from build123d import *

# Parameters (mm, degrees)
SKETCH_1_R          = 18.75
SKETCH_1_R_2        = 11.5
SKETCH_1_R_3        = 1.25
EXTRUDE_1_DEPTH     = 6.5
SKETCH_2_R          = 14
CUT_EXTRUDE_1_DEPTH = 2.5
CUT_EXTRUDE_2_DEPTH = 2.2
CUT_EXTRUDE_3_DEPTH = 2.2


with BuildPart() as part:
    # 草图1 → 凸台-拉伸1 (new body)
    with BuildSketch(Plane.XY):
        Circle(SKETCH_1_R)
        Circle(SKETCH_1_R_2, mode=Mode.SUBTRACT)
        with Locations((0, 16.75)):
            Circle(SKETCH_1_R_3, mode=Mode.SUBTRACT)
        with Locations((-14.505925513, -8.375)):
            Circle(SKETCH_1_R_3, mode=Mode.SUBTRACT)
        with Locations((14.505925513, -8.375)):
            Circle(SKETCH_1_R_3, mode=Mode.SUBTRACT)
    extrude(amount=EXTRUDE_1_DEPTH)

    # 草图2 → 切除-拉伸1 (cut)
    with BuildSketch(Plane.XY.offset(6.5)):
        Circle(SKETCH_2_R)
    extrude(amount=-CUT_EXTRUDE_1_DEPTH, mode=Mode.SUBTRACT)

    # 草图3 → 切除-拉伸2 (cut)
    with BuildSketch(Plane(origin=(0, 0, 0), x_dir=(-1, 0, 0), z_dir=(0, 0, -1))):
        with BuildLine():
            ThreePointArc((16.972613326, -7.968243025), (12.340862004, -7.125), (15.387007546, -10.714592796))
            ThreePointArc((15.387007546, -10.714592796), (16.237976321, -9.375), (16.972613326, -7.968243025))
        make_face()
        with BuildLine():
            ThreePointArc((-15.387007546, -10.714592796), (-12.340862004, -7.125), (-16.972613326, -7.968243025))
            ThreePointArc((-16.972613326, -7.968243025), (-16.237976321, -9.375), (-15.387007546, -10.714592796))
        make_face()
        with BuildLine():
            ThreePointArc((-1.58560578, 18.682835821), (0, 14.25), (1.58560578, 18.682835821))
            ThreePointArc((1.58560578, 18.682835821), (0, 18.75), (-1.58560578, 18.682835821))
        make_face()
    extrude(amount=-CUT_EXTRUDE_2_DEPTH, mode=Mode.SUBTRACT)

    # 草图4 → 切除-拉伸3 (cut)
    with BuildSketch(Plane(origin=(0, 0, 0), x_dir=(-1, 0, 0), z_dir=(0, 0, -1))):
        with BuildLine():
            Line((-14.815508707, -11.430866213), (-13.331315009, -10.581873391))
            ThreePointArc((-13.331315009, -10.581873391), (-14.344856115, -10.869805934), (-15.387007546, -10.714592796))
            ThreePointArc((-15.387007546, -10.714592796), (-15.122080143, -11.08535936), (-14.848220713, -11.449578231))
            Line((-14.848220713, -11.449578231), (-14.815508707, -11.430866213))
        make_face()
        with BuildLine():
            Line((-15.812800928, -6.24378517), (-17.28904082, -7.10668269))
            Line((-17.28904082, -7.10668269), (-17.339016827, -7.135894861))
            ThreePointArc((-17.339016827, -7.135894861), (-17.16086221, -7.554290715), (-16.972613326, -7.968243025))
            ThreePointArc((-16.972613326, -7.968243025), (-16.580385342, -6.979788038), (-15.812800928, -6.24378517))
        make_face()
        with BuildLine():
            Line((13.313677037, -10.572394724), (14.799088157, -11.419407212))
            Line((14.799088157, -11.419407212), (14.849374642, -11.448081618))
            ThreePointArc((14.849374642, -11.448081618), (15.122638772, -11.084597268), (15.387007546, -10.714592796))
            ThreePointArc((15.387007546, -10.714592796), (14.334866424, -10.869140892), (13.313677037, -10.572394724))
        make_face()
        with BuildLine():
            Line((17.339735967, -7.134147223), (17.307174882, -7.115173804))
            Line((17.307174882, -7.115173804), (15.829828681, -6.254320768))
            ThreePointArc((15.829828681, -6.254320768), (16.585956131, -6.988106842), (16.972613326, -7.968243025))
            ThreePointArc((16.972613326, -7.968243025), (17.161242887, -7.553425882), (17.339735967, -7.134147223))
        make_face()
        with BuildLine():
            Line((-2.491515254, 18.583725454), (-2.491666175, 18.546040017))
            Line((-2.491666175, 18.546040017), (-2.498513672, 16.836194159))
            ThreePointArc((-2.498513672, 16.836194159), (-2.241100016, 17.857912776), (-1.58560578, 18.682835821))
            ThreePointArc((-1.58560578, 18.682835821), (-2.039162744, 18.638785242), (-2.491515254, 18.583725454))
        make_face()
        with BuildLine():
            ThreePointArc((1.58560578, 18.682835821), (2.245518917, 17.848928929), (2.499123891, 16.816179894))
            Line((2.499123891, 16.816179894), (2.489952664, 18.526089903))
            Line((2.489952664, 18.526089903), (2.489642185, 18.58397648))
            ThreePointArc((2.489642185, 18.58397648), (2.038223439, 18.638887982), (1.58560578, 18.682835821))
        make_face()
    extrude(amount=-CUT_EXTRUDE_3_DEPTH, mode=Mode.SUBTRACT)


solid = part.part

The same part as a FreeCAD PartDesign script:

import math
import FreeCAD as App
import Part
import Sketcher

V = App.Vector
Q = App.Units.Quantity

doc = App.newDocument("Part")
params = doc.addObject("Spreadsheet::Sheet", "Params")
for row, (alias, value) in enumerate([
    ("sketch1_diameter", "23 mm"),
    ("sketch1_diameter2", "37.5 mm"),
    ("sketch1_diameter3", "2.5 mm"),
    ("pad1_length", "6.5 mm"),
    ("sketch2_diameter", "28 mm"),
    ("pocket1_length", "2.5 mm"),
    ("sketch3_radius", "2.5 mm"),
    ("sketch3_radius2", "18.75 mm"),
    ("pocket2_length", "2.2 mm"),
    ("sketch4_radius", "2.5 mm"),
    ("sketch4_radius2", "2.5 mm"),
    ("sketch4_radius3", "2.5 mm"),
    ("sketch4_radius4", "2.5 mm"),
    ("sketch4_radius5", "2.5 mm"),
    ("pocket3_length", "2.2 mm"),
], start=1):
    params.set(f"A{row}", alias)
    params.set(f"B{row}", "=" + value)
    params.setAlias(f"B{row}", alias)

body = doc.addObject("PartDesign::Body", "Body")

# Sketch on XY plane
sketch1 = body.newObject("Sketcher::SketchObject", "Sketch")
sketch1.AttachmentSupport = (doc.getObject("XY_Plane"), [""])
sketch1.MapMode = "FlatFace"
sketch1.addGeometry(Part.Circle(V(0, 0, 0), V(0, 0, 1), 18.8), False)
sketch1.addGeometry(Part.Circle(V(-14.5, -8.4, 0), V(0, 0, 1), 1.2), False)
sketch1.addGeometry(Part.Circle(V(14.5, -8.4, 0), V(0, 0, 1), 1.2), False)
sketch1.addGeometry(Part.Circle(V(0, 0, 0), V(0, 0, 1), 11.5), False)
sketch1.addGeometry(Part.Circle(V(0, 16.8, 0), V(0, 0, 1), 1.2), False)
sketch1.addConstraint(Sketcher.Constraint("Coincident", 0, 3, -1, 1))
sketch1.addConstraint(Sketcher.Constraint("Coincident", 3, 3, -1, 1))
sketch1.addConstraint(Sketcher.Constraint("Equal", 1, 2))
sketch1.addConstraint(Sketcher.Constraint("Equal", 2, 4))
sketch1.addConstraint(Sketcher.Constraint("Symmetric", 1, 3, 2, 3, -2))
sketch1.addConstraint(Sketcher.Constraint("PointOnObject", 4, 3, -2))
sketch1.addConstraint(Sketcher.Constraint("Diameter", 3, Q("23 mm")))
sketch1.addConstraint(Sketcher.Constraint("Diameter", 0, Q("37.5 mm")))
sketch1.addConstraint(Sketcher.Constraint("Diameter", 1, Q("2.5 mm")))
sketch1.addConstraint(Sketcher.Constraint("DistanceY", -1, 1, 4, 3, Q("16.75 mm")))
sketch1.addConstraint(Sketcher.Constraint("DistanceY", 1, 3, -1, 1, Q("8.375 mm")))
sketch1.addConstraint(Sketcher.Constraint("DistanceX", 1, 3, 2, 3, Q("29.011851 mm")))
sketch1.setExpression("Constraints[6]", "Params.sketch1_diameter")
sketch1.setExpression("Constraints[7]", "Params.sketch1_diameter2")
sketch1.setExpression("Constraints[8]", "Params.sketch1_diameter3")
pad1 = body.newObject("PartDesign::Pad", "Pad")
pad1.Profile = sketch1
pad1.setExpression("Length", "Params.pad1_length")

# Sketch on XY plane
sketch2 = body.newObject("Sketcher::SketchObject", "Sketch001")
sketch2.AttachmentSupport = (doc.getObject("XY_Plane"), [""])
sketch2.MapMode = "FlatFace"
sketch2.AttachmentOffset = App.Placement(V(0, 0, 6.5), App.Rotation())
sketch2.addGeometry(Part.Circle(V(0, 0, 0), V(0, 0, 1), 14), False)
sketch2.addConstraint(Sketcher.Constraint("Coincident", 0, 3, -1, 1))
sketch2.addConstraint(Sketcher.Constraint("Diameter", 0, Q("28 mm")))
sketch2.setExpression("Constraints[1]", "Params.sketch2_diameter")
pocket1 = body.newObject("PartDesign::Pocket", "Pocket")
pocket1.Profile = sketch2
pocket1.setExpression("Length", "Params.pocket1_length")

# Sketch on XY plane
sketch3 = body.newObject("Sketcher::SketchObject", "Sketch002")
sketch3.AttachmentSupport = (doc.getObject("XY_Plane"), [""])
sketch3.MapMode = "FlatFace"
sketch3.addGeometry(Part.ArcOfCircle(Part.Circle(V(-14.5, -8.4, 0), V(0, 0, 1), 2.5), math.radians(-111), math.radians(171)), False)
sketch3.addGeometry(Part.ArcOfCircle(Part.Circle(V(0, 0, 0), V(0, 0, 1), 18.8), math.radians(-154.85), math.radians(-145.15)), False)
sketch3.addGeometry(Part.ArcOfCircle(Part.Circle(V(14.5, -8.4, 0), V(0, 0, 1), 2.5), math.radians(9), math.radians(291)), False)
sketch3.addGeometry(Part.ArcOfCircle(Part.Circle(V(0, 0, 0), V(0, 0, 1), 18.8), math.radians(-34.85), math.radians(-25.15)), False)
sketch3.addGeometry(Part.ArcOfCircle(Part.Circle(V(0, 16.8, 0), V(0, 0, 1), 2.5), math.radians(129), math.radians(411)), False)
sketch3.addGeometry(Part.ArcOfCircle(Part.Circle(V(0, 0, 0), V(0, 0, 1), 18.8), math.radians(85.15), math.radians(94.85)), False)
sketch3.addConstraint(Sketcher.Constraint("Coincident", 0, 1, 1, 2))
sketch3.addConstraint(Sketcher.Constraint("Coincident", 1, 1, 0, 2))
sketch3.addConstraint(Sketcher.Constraint("Coincident", 2, 1, 3, 2))
sketch3.addConstraint(Sketcher.Constraint("Coincident", 3, 1, 2, 2))
sketch3.addConstraint(Sketcher.Constraint("Coincident", 4, 1, 5, 2))
sketch3.addConstraint(Sketcher.Constraint("Coincident", 5, 1, 4, 2))
sketch3.addConstraint(Sketcher.Constraint("Coincident", 1, 3, -1, 1))
sketch3.addConstraint(Sketcher.Constraint("Coincident", 3, 3, -1, 1))
sketch3.addConstraint(Sketcher.Constraint("Coincident", 5, 3, -1, 1))
sketch3.addConstraint(Sketcher.Constraint("Equal", 0, 2))
sketch3.addConstraint(Sketcher.Constraint("Equal", 1, 3))
sketch3.addConstraint(Sketcher.Constraint("Equal", 2, 4))
sketch3.addConstraint(Sketcher.Constraint("Equal", 3, 5))
sketch3.addConstraint(Sketcher.Constraint("Symmetric", 0, 3, 2, 3, -2))
sketch3.addConstraint(Sketcher.Constraint("PointOnObject", 4, 3, -2))
sketch3.addConstraint(Sketcher.Constraint("Radius", 0, Q("2.5 mm")))
sketch3.addConstraint(Sketcher.Constraint("Radius", 1, Q("18.75 mm")))
sketch3.addConstraint(Sketcher.Constraint("DistanceY", -1, 1, 4, 3, Q("16.75 mm")))
sketch3.addConstraint(Sketcher.Constraint("DistanceY", 0, 3, -1, 1, Q("8.375 mm")))
sketch3.addConstraint(Sketcher.Constraint("DistanceX", 0, 3, 2, 3, Q("29.011851 mm")))
sketch3.setExpression("Constraints[15]", "Params.sketch3_radius")
sketch3.setExpression("Constraints[16]", "Params.sketch3_radius2")
pocket2 = body.newObject("PartDesign::Pocket", "Pocket001")
pocket2.Profile = sketch3
pocket2.setExpression("Length", "Params.pocket2_length")
pocket2.Reversed = True

# Sketch on XY plane
sketch4 = body.newObject("Sketcher::SketchObject", "Sketch003")
sketch4.AttachmentSupport = (doc.getObject("XY_Plane"), [""])
sketch4.MapMode = "FlatFace"
sketch4.addGeometry(Part.LineSegment(V(14.815509, -11.430866, 0), V(13.331315, -10.581873, 0)), False)
sketch4.addGeometry(Part.ArcOfCircle(Part.Circle(V(14.505926, -8.375, 0), V(0, 0, 1), 2.5), math.radians(-118.024184), math.radians(-69.363811)), False)
sketch4.addGeometry(Part.ArcOfCircle(Part.Circle(V(-0.000001, 0.000001, 0), V(0, 0, 1), 18.750001), math.radians(-37.636095), math.radians(-34.851048)), False)
sketch4.addGeometry(Part.LineSegment(V(14.848221, -11.449578, 0), V(14.815509, -11.430866, 0)), False)
sketch4.addGeometry(Part.LineSegment(V(15.812801, -6.243785, 0), V(17.289041, -7.106683, 0)), False)
sketch4.addGeometry(Part.LineSegment(V(17.289041, -7.106683, 0), V(17.339017, -7.135895, 0)), False)
sketch4.addGeometry(Part.ArcOfCircle(Part.Circle(V(-0.000001, 0, 0), V(0, 0, 1), 18.750001), math.radians(-25.148952), math.radians(-22.369679)), False)
sketch4.addGeometry(Part.ArcOfCircle(Part.Circle(V(14.505926, -8.375, 0), V(0, 0, 1), 2.5), math.radians(9.363811), math.radians(58.483091)), False)
sketch4.addGeometry(Part.LineSegment(V(-13.313677, -10.572395, 0), V(-14.799088, -11.419407, 0)), False)
sketch4.addGeometry(Part.LineSegment(V(-14.799088, -11.419407, 0), V(-14.849375, -11.448082, 0)), False)
sketch4.addGeometry(Part.ArcOfCircle(Part.Circle(V(-0.000002, -0.000001, 0), V(0, 0, 1), 18.749998), math.radians(-145.148952), math.radians(-142.369679)), False)
sketch4.addGeometry(Part.ArcOfCircle(Part.Circle(V(-14.505926, -8.375, 0), V(0, 0, 1), 2.5), math.radians(-110.636189), math.radians(-61.516909)), False)
sketch4.addGeometry(Part.LineSegment(V(-17.339736, -7.134147, 0), V(-17.307175, -7.115174, 0)), False)
sketch4.addGeometry(Part.LineSegment(V(-17.307175, -7.115174, 0), V(-15.829829, -6.254321, 0)), False)
sketch4.addGeometry(Part.ArcOfCircle(Part.Circle(V(-14.505926, -8.375, 0), V(0, 0, 1), 2.5), math.radians(121.975816), math.radians(170.636189)), False)
sketch4.addGeometry(Part.ArcOfCircle(Part.Circle(V(0.000003, 0.000001, 0), V(0, 0, 1), 18.750003), math.radians(-157.636095), math.radians(-154.851048)), False)
sketch4.addGeometry(Part.LineSegment(V(2.491515, 18.583725, 0), V(2.491666, 18.54604, 0)), False)
sketch4.addGeometry(Part.LineSegment(V(2.491666, 18.54604, 0), V(2.498514, 16.836194, 0)), False)
sketch4.addGeometry(Part.ArcOfCircle(Part.Circle(V(0, 16.75, 0), V(0, 0, 1), 2.5), math.radians(1.975816), math.radians(50.636189)), False)
sketch4.addGeometry(Part.ArcOfCircle(Part.Circle(V(0, -0.000001, 0), V(0, 0, 1), 18.750001), math.radians(82.363905), math.radians(85.148952)), False)
sketch4.addGeometry(Part.ArcOfCircle(Part.Circle(V(0, 16.75, 0), V(0, 0, 1), 2.5), math.radians(129.363811), math.radians(178.483091)), False)
sketch4.addGeometry(Part.LineSegment(V(-2.499124, 16.81618, 0), V(-2.489953, 18.52609, 0)), False)
sketch4.addGeometry(Part.LineSegment(V(-2.489953, 18.52609, 0), V(-2.489642, 18.583976, 0)), False)
sketch4.addGeometry(Part.ArcOfCircle(Part.Circle(V(0, -0.000002, 0), V(0, 0, 1), 18.750002), math.radians(94.851048), math.radians(97.63032)), False)
sketch4.addConstraint(Sketcher.Constraint("Coincident", 0, 2, 1, 1))
sketch4.addConstraint(Sketcher.Constraint("Coincident", 1, 2, 2, 2))
sketch4.addConstraint(Sketcher.Constraint("Coincident", 2, 1, 3, 1))
sketch4.addConstraint(Sketcher.Constraint("Coincident", 3, 2, 0, 1))
sketch4.addConstraint(Sketcher.Constraint("Coincident", 4, 2, 5, 1))
sketch4.addConstraint(Sketcher.Constraint("Coincident", 5, 2, 6, 2))
sketch4.addConstraint(Sketcher.Constraint("Coincident", 6, 1, 7, 1))
sketch4.addConstraint(Sketcher.Constraint("Coincident", 7, 2, 4, 1))
sketch4.addConstraint(Sketcher.Constraint("Coincident", 8, 2, 9, 1))
sketch4.addConstraint(Sketcher.Constraint("Coincident", 9, 2, 10, 2))
sketch4.addConstraint(Sketcher.Constraint("Coincident", 10, 1, 11, 1))
sketch4.addConstraint(Sketcher.Constraint("Coincident", 11, 2, 8, 1))
sketch4.addConstraint(Sketcher.Constraint("Coincident", 12, 2, 13, 1))
sketch4.addConstraint(Sketcher.Constraint("Coincident", 13, 2, 14, 1))
sketch4.addConstraint(Sketcher.Constraint("Coincident", 14, 2, 15, 2))
sketch4.addConstraint(Sketcher.Constraint("Coincident", 15, 1, 12, 1))
sketch4.addConstraint(Sketcher.Constraint("Coincident", 16, 2, 17, 1))
sketch4.addConstraint(Sketcher.Constraint("Coincident", 17, 2, 18, 1))
sketch4.addConstraint(Sketcher.Constraint("Coincident", 18, 2, 19, 2))
sketch4.addConstraint(Sketcher.Constraint("Coincident", 19, 1, 16, 1))
sketch4.addConstraint(Sketcher.Constraint("Coincident", 20, 2, 21, 1))
sketch4.addConstraint(Sketcher.Constraint("Coincident", 21, 2, 22, 1))
sketch4.addConstraint(Sketcher.Constraint("Coincident", 22, 2, 23, 2))
sketch4.addConstraint(Sketcher.Constraint("Coincident", 23, 1, 20, 1))
sketch4.addConstraint(Sketcher.Constraint("Coincident", 2, 3, -1, 1))
sketch4.addConstraint(Sketcher.Constraint("Coincident", 6, 3, -1, 1))
sketch4.addConstraint(Sketcher.Constraint("Coincident", 10, 3, -1, 1))
sketch4.addConstraint(Sketcher.Constraint("Coincident", 15, 3, -1, 1))
sketch4.addConstraint(Sketcher.Constraint("Coincident", 19, 3, -1, 1))
sketch4.addConstraint(Sketcher.Constraint("Coincident", 23, 3, -1, 1))
sketch4.addConstraint(Sketcher.Constraint("Coincident", 7, 3, 1, 3))
sketch4.addConstraint(Sketcher.Constraint("Coincident", 14, 3, 11, 3))
sketch4.addConstraint(Sketcher.Constraint("Coincident", 20, 3, 18, 3))
sketch4.addConstraint(Sketcher.Constraint("PointOnObject", 18, 3, -2))
sketch4.addConstraint(Sketcher.Constraint("Radius", 1, Q("2.5 mm")))
sketch4.addConstraint(Sketcher.Constraint("Radius", 7, Q("2.5 mm")))
sketch4.addConstraint(Sketcher.Constraint("Radius", 11, Q("2.5 mm")))
sketch4.addConstraint(Sketcher.Constraint("Radius", 14, Q("2.5 mm")))
sketch4.addConstraint(Sketcher.Constraint("Radius", 18, Q("2.5 mm")))
sketch4.addConstraint(Sketcher.Constraint("Radius", 20, Q("2.5 mm")))
sketch4.addConstraint(Sketcher.Constraint("Radius", 2, Q("18.750001 mm")))
sketch4.addConstraint(Sketcher.Constraint("Radius", 6, Q("18.750001 mm")))
sketch4.addConstraint(Sketcher.Constraint("Radius", 19, Q("18.750001 mm")))
sketch4.addConstraint(Sketcher.Constraint("Radius", 23, Q("18.750002 mm")))
sketch4.addConstraint(Sketcher.Constraint("DistanceY", -1, 1, 18, 3, Q("16.75 mm")))
sketch4.addConstraint(Sketcher.Constraint("DistanceY", 1, 3, -1, 1, Q("8.375 mm")))
sketch4.addConstraint(Sketcher.Constraint("DistanceY", 11, 3, -1, 1, Q("8.375 mm")))
sketch4.addConstraint(Sketcher.Constraint("Radius", 10, Q("18.749998 mm")))
sketch4.addConstraint(Sketcher.Constraint("Radius", 15, Q("18.750003 mm")))
sketch4.addConstraint(Sketcher.Constraint("DistanceX", 19, 1, 17, 2, Q("0.006998 mm")))
sketch4.addConstraint(Sketcher.Constraint("DistanceX", -1, 1, 7, 2, Q("15.812801 mm")))
sketch4.addConstraint(Sketcher.Constraint("DistanceX", 3, 2, 1, 2, Q("0.571499 mm")))
sketch4.addConstraint(Sketcher.Constraint("DistanceY", 10, 1, 11, 2, Q("0.142198 mm")))
sketch4.addConstraint(Sketcher.Constraint("DistanceX", 12, 2, 9, 2, Q("2.4578 mm")))
sketch4.addConstraint(Sketcher.Constraint("Distance", 0, Q("1.70986 mm")))
sketch4.addConstraint(Sketcher.Constraint("Distance", 13, Q("1.70986 mm")))
sketch4.addConstraint(Sketcher.Constraint("Distance", 17, Q("1.70986 mm")))
sketch4.addConstraint(Sketcher.Constraint("DistanceX", -1, 1, 2, 1, Q("14.848221 mm")))
sketch4.addConstraint(Sketcher.Constraint("DistanceX", -1, 1, 3, 2, Q("14.815509 mm")))
sketch4.addConstraint(Sketcher.Constraint("DistanceX", -1, 1, 4, 2, Q("17.289041 mm")))
sketch4.addConstraint(Sketcher.Constraint("DistanceX", 8, 2, -1, 1, Q("14.799088 mm")))
sketch4.addConstraint(Sketcher.Constraint("DistanceY", 9, 2, -1, 1, Q("11.448082 mm")))
sketch4.addConstraint(Sketcher.Constraint("DistanceX", 13, 2, -1, 1, Q("15.829829 mm")))
sketch4.addConstraint(Sketcher.Constraint("DistanceY", 13, 2, -1, 1, Q("6.254321 mm")))
sketch4.addConstraint(Sketcher.Constraint("DistanceY", -1, 1, 16, 2, Q("18.54604 mm")))
sketch4.addConstraint(Sketcher.Constraint("DistanceY", -1, 1, 20, 2, Q("16.81618 mm")))
sketch4.addConstraint(Sketcher.Constraint("DistanceY", -1, 1, 21, 2, Q("18.52609 mm")))
sketch4.addConstraint(Sketcher.Constraint("DistanceX", 0, 2, 7, 3, Q("1.174611 mm")))
sketch4.addConstraint(Sketcher.Constraint("DistanceY", 1, 2, 4, 2, Q("3.60791 mm")))
sketch4.addConstraint(Sketcher.Constraint("DistanceX", 1, 3, 5, 2, Q("2.833091 mm")))
sketch4.addConstraint(Sketcher.Constraint("DistanceX", 15, 1, 12, 2, Q("0.032561 mm")))
sketch4.addConstraint(Sketcher.Constraint("DistanceX", 18, 2, 16, 2, Q("0.90606 mm")))
sketch4.addConstraint(Sketcher.Constraint("DistanceX", 20, 2, 21, 2, Q("0.009171 mm")))
sketch4.addConstraint(Sketcher.Constraint("DistanceX", 21, 2, 22, 2, Q("0.00031 mm")))
sketch4.addConstraint(Sketcher.Constraint("Distance", 8, Q("1.709935 mm")))
sketch4.setExpression("Constraints[34]", "Params.sketch4_radius")
sketch4.setExpression("Constraints[35]", "Params.sketch4_radius2")
sketch4.setExpression("Constraints[36]", "Params.sketch4_radius3")
sketch4.setExpression("Constraints[37]", "Params.sketch4_radius4")
sketch4.setExpression("Constraints[38]", "Params.sketch4_radius5")
pocket3 = body.newObject("PartDesign::Pocket", "Pocket002")
pocket3.Profile = sketch4
pocket3.setExpression("Length", "Params.pocket3_length")
pocket3.Reversed = True

doc.recompute()
